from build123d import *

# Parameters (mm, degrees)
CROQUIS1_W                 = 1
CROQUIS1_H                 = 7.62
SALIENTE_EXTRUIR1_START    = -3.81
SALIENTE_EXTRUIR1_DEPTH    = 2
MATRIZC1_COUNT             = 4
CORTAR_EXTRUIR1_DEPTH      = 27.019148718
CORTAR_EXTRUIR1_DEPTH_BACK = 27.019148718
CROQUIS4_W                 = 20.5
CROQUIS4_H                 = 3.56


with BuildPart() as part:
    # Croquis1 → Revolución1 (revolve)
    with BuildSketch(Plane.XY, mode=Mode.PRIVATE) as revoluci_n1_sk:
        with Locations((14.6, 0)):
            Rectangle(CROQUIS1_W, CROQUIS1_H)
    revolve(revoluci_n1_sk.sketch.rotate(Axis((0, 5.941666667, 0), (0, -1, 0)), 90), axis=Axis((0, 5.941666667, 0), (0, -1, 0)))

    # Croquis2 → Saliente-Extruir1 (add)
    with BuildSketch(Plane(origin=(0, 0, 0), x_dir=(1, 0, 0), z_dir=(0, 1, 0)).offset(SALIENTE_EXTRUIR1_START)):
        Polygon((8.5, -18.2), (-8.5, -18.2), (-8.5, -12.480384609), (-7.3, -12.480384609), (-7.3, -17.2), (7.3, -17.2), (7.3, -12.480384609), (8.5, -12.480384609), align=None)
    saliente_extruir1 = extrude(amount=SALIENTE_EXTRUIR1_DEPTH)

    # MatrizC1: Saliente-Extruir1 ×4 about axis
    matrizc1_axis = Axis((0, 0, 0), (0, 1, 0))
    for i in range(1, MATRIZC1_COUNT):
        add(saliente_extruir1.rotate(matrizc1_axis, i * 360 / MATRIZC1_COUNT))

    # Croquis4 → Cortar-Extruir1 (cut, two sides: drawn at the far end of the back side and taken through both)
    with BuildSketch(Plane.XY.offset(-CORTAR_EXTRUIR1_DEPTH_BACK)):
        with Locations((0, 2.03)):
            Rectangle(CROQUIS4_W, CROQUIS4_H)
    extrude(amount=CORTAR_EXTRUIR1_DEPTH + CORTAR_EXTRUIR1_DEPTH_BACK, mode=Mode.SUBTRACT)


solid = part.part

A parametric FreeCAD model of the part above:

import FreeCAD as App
import Part
import Sketcher
from FreeCAD import Vector


def add_polygon(sketch, points):
    """Adds a closed chain of lines whose ends are joined by coincident constraints."""
    first, n = sketch.GeometryCount, len(points)
    for a, b in zip(points, points[1:] + points[:1]):
        sketch.addGeometry(Part.LineSegment(App.Vector(*a, 0), App.Vector(*b, 0)), False)
    for i in range(n):
        sketch.addConstraint(Sketcher.Constraint("Coincident", first + i, 2, first + (i + 1) % n, 1))

doc = App.newDocument("Part")
params = doc.addObject("Spreadsheet::Sheet", "Params")
for row, (alias, value) in enumerate([
    ("sketch1_width", "1 mm"),
    ("sketch1_height", "7.62 mm"),
    ("revolution_angle", "360 deg"),
    ("sketch2_width", "17 mm"),
    ("sketch2_width2", "1.2 mm"),
    ("pad1_length", "2 mm"),
    ("sketch3_width", "20.5 mm"),
    ("sketch3_height", "3.56 mm"),
], start=1):
    params.set(f"A{row}", alias)
    params.set(f"B{row}", "=" + value)
    params.setAlias(f"B{row}", alias)

body = doc.addObject("PartDesign::Body", "Body")

sketch1 = body.newObject("Sketcher::SketchObject", "Sketch")
sketch1.AttachmentSupport = (doc.getObject("XY_Plane"), [""])
sketch1.MapMode = "FlatFace"
add_polygon(sketch1, [(14.1, 3.81), (14.1, -3.81), (15.1, -3.81), (15.1, 3.81)])
sketch1.addConstraint([
    Sketcher.Constraint("Vertical", 0),
    Sketcher.Constraint("Horizontal", 1),
    Sketcher.Constraint("Vertical", 2),
    Sketcher.Constraint("Horizontal", 3),
    Sketcher.Constraint("DistanceX", 1, 1, 1, 2, 1.0),
    Sketcher.Constraint("DistanceY", 0, 2, 0, 1, 7.62),
    Sketcher.Constraint("DistanceX", -1, 1, 0, 2, 14.1),
    Sketcher.Constraint("DistanceY", 0, 2, -1, 1, 3.81),
])
sketch1.setExpression("Constraints[8]", "Params.sketch1_width")
sketch1.setExpression("Constraints[9]", "Params.sketch1_height")
revolution = body.newObject("PartDesign::Revolution", "Revolution")
revolution.Profile = sketch1
revolution.ReferenceAxis = (sketch1, ["V_Axis"])
revolution.setExpression("Angle", "Params.revolution_angle")

sketch2 = body.newObject("Sketcher::SketchObject", "Sketch001")
sketch2.AttachmentSupport = (doc.getObject("XZ_Plane"), [""])
sketch2.MapMode = "FlatFace"
sketch2.AttachmentOffset = App.Placement(Vector(0, 0, 3.81), App.Rotation())
add_polygon(sketch2, [(-8.5, 18.2), (8.5, 18.2), (8.5, 12.480385), (7.3, 12.480385), (7.3, 17.2), (-7.3, 17.2), (-7.3, 12.480385), (-8.5, 12.480385)])
sketch2.addConstraint([
    Sketcher.Constraint("Horizontal", 0),
    Sketcher.Constraint("Vertical", 1),
    Sketcher.Constraint("Horizontal", 2),
    Sketcher.Constraint("Vertical", 3),
    Sketcher.Constraint("Horizontal", 4),
    Sketcher.Constraint("Vertical", 5),
    Sketcher.Constraint("Horizontal", 6),
    Sketcher.Constraint("Vertical", 7),
    Sketcher.Constraint("Symmetric", 2, 2, 5, 2, -2),
    Sketcher.Constraint("Equal", 2, 6),
    Sketcher.Constraint("DistanceX", 0, 1, 0, 2, 17.0),
    Sketcher.Constraint("DistanceX", 2, 2, 2, 1, 1.2),
    Sketcher.Constraint("DistanceY", 3, 2, 0, 2, 1.0),
    Sketcher.Constraint("DistanceY", -1, 1, 0, 2, 18.2),
    Sketcher.Constraint("DistanceY", 1, 2, 1, 1, 5.719615),
])
sketch2.setExpression("Constraints[18]", "Params.sketch2_width")
sketch2.setExpression("Constraints[19]", "Params.sketch2_width2")
pad1 = body.newObject("PartDesign::Pad", "Pad")
pad1.Profile = sketch2
pad1.setExpression("Length", "Params.pad1_length")
pad1.Reversed = True
doc.recompute()

polarpattern = body.newObject("PartDesign::PolarPattern", "PolarPattern")
polarpattern.Originals = [pad1]
polarpattern.Axis = (doc.getObject("Y_Axis"), [""])
polarpattern.Angle = 360
polarpattern.Occurrences = 4
body.Tip = polarpattern

sketch3 = body.newObject("Sketcher::SketchObject", "Sketch002")
sketch3.AttachmentSupport = (doc.getObject("XY_Plane"), [""])
sketch3.MapMode = "FlatFace"
add_polygon(sketch3, [(-10.25, 3.81), (-10.25, 0.25), (10.25, 0.25), (10.25, 3.81)])
sketch3.addConstraint([
    Sketcher.Constraint("Vertical", 0),
    Sketcher.Constraint("Horizontal", 1),
    Sketcher.Constraint("Vertical", 2),
    Sketcher.Constraint("Horizontal", 3),
    Sketcher.Constraint("DistanceX", 1, 1, 1, 2, 20.5),
    Sketcher.Constraint("DistanceY", 0, 2, 0, 1, 3.56),
    Sketcher.Constraint("DistanceX", 0, 2, -1, 1, 10.25),
    Sketcher.Constraint("DistanceY", -1, 1, 0, 2, 0.25),
])
sketch3.setExpression("Constraints[8]", "Params.sketch3_width")
sketch3.setExpression("Constraints[9]", "Params.sketch3_height")
pocket1 = body.newObject("PartDesign::Pocket", "Pocket")
pocket1.Profile = sketch3
pocket1.Type = "ThroughAll"
pocket1.Midplane = True

doc.recompute()
